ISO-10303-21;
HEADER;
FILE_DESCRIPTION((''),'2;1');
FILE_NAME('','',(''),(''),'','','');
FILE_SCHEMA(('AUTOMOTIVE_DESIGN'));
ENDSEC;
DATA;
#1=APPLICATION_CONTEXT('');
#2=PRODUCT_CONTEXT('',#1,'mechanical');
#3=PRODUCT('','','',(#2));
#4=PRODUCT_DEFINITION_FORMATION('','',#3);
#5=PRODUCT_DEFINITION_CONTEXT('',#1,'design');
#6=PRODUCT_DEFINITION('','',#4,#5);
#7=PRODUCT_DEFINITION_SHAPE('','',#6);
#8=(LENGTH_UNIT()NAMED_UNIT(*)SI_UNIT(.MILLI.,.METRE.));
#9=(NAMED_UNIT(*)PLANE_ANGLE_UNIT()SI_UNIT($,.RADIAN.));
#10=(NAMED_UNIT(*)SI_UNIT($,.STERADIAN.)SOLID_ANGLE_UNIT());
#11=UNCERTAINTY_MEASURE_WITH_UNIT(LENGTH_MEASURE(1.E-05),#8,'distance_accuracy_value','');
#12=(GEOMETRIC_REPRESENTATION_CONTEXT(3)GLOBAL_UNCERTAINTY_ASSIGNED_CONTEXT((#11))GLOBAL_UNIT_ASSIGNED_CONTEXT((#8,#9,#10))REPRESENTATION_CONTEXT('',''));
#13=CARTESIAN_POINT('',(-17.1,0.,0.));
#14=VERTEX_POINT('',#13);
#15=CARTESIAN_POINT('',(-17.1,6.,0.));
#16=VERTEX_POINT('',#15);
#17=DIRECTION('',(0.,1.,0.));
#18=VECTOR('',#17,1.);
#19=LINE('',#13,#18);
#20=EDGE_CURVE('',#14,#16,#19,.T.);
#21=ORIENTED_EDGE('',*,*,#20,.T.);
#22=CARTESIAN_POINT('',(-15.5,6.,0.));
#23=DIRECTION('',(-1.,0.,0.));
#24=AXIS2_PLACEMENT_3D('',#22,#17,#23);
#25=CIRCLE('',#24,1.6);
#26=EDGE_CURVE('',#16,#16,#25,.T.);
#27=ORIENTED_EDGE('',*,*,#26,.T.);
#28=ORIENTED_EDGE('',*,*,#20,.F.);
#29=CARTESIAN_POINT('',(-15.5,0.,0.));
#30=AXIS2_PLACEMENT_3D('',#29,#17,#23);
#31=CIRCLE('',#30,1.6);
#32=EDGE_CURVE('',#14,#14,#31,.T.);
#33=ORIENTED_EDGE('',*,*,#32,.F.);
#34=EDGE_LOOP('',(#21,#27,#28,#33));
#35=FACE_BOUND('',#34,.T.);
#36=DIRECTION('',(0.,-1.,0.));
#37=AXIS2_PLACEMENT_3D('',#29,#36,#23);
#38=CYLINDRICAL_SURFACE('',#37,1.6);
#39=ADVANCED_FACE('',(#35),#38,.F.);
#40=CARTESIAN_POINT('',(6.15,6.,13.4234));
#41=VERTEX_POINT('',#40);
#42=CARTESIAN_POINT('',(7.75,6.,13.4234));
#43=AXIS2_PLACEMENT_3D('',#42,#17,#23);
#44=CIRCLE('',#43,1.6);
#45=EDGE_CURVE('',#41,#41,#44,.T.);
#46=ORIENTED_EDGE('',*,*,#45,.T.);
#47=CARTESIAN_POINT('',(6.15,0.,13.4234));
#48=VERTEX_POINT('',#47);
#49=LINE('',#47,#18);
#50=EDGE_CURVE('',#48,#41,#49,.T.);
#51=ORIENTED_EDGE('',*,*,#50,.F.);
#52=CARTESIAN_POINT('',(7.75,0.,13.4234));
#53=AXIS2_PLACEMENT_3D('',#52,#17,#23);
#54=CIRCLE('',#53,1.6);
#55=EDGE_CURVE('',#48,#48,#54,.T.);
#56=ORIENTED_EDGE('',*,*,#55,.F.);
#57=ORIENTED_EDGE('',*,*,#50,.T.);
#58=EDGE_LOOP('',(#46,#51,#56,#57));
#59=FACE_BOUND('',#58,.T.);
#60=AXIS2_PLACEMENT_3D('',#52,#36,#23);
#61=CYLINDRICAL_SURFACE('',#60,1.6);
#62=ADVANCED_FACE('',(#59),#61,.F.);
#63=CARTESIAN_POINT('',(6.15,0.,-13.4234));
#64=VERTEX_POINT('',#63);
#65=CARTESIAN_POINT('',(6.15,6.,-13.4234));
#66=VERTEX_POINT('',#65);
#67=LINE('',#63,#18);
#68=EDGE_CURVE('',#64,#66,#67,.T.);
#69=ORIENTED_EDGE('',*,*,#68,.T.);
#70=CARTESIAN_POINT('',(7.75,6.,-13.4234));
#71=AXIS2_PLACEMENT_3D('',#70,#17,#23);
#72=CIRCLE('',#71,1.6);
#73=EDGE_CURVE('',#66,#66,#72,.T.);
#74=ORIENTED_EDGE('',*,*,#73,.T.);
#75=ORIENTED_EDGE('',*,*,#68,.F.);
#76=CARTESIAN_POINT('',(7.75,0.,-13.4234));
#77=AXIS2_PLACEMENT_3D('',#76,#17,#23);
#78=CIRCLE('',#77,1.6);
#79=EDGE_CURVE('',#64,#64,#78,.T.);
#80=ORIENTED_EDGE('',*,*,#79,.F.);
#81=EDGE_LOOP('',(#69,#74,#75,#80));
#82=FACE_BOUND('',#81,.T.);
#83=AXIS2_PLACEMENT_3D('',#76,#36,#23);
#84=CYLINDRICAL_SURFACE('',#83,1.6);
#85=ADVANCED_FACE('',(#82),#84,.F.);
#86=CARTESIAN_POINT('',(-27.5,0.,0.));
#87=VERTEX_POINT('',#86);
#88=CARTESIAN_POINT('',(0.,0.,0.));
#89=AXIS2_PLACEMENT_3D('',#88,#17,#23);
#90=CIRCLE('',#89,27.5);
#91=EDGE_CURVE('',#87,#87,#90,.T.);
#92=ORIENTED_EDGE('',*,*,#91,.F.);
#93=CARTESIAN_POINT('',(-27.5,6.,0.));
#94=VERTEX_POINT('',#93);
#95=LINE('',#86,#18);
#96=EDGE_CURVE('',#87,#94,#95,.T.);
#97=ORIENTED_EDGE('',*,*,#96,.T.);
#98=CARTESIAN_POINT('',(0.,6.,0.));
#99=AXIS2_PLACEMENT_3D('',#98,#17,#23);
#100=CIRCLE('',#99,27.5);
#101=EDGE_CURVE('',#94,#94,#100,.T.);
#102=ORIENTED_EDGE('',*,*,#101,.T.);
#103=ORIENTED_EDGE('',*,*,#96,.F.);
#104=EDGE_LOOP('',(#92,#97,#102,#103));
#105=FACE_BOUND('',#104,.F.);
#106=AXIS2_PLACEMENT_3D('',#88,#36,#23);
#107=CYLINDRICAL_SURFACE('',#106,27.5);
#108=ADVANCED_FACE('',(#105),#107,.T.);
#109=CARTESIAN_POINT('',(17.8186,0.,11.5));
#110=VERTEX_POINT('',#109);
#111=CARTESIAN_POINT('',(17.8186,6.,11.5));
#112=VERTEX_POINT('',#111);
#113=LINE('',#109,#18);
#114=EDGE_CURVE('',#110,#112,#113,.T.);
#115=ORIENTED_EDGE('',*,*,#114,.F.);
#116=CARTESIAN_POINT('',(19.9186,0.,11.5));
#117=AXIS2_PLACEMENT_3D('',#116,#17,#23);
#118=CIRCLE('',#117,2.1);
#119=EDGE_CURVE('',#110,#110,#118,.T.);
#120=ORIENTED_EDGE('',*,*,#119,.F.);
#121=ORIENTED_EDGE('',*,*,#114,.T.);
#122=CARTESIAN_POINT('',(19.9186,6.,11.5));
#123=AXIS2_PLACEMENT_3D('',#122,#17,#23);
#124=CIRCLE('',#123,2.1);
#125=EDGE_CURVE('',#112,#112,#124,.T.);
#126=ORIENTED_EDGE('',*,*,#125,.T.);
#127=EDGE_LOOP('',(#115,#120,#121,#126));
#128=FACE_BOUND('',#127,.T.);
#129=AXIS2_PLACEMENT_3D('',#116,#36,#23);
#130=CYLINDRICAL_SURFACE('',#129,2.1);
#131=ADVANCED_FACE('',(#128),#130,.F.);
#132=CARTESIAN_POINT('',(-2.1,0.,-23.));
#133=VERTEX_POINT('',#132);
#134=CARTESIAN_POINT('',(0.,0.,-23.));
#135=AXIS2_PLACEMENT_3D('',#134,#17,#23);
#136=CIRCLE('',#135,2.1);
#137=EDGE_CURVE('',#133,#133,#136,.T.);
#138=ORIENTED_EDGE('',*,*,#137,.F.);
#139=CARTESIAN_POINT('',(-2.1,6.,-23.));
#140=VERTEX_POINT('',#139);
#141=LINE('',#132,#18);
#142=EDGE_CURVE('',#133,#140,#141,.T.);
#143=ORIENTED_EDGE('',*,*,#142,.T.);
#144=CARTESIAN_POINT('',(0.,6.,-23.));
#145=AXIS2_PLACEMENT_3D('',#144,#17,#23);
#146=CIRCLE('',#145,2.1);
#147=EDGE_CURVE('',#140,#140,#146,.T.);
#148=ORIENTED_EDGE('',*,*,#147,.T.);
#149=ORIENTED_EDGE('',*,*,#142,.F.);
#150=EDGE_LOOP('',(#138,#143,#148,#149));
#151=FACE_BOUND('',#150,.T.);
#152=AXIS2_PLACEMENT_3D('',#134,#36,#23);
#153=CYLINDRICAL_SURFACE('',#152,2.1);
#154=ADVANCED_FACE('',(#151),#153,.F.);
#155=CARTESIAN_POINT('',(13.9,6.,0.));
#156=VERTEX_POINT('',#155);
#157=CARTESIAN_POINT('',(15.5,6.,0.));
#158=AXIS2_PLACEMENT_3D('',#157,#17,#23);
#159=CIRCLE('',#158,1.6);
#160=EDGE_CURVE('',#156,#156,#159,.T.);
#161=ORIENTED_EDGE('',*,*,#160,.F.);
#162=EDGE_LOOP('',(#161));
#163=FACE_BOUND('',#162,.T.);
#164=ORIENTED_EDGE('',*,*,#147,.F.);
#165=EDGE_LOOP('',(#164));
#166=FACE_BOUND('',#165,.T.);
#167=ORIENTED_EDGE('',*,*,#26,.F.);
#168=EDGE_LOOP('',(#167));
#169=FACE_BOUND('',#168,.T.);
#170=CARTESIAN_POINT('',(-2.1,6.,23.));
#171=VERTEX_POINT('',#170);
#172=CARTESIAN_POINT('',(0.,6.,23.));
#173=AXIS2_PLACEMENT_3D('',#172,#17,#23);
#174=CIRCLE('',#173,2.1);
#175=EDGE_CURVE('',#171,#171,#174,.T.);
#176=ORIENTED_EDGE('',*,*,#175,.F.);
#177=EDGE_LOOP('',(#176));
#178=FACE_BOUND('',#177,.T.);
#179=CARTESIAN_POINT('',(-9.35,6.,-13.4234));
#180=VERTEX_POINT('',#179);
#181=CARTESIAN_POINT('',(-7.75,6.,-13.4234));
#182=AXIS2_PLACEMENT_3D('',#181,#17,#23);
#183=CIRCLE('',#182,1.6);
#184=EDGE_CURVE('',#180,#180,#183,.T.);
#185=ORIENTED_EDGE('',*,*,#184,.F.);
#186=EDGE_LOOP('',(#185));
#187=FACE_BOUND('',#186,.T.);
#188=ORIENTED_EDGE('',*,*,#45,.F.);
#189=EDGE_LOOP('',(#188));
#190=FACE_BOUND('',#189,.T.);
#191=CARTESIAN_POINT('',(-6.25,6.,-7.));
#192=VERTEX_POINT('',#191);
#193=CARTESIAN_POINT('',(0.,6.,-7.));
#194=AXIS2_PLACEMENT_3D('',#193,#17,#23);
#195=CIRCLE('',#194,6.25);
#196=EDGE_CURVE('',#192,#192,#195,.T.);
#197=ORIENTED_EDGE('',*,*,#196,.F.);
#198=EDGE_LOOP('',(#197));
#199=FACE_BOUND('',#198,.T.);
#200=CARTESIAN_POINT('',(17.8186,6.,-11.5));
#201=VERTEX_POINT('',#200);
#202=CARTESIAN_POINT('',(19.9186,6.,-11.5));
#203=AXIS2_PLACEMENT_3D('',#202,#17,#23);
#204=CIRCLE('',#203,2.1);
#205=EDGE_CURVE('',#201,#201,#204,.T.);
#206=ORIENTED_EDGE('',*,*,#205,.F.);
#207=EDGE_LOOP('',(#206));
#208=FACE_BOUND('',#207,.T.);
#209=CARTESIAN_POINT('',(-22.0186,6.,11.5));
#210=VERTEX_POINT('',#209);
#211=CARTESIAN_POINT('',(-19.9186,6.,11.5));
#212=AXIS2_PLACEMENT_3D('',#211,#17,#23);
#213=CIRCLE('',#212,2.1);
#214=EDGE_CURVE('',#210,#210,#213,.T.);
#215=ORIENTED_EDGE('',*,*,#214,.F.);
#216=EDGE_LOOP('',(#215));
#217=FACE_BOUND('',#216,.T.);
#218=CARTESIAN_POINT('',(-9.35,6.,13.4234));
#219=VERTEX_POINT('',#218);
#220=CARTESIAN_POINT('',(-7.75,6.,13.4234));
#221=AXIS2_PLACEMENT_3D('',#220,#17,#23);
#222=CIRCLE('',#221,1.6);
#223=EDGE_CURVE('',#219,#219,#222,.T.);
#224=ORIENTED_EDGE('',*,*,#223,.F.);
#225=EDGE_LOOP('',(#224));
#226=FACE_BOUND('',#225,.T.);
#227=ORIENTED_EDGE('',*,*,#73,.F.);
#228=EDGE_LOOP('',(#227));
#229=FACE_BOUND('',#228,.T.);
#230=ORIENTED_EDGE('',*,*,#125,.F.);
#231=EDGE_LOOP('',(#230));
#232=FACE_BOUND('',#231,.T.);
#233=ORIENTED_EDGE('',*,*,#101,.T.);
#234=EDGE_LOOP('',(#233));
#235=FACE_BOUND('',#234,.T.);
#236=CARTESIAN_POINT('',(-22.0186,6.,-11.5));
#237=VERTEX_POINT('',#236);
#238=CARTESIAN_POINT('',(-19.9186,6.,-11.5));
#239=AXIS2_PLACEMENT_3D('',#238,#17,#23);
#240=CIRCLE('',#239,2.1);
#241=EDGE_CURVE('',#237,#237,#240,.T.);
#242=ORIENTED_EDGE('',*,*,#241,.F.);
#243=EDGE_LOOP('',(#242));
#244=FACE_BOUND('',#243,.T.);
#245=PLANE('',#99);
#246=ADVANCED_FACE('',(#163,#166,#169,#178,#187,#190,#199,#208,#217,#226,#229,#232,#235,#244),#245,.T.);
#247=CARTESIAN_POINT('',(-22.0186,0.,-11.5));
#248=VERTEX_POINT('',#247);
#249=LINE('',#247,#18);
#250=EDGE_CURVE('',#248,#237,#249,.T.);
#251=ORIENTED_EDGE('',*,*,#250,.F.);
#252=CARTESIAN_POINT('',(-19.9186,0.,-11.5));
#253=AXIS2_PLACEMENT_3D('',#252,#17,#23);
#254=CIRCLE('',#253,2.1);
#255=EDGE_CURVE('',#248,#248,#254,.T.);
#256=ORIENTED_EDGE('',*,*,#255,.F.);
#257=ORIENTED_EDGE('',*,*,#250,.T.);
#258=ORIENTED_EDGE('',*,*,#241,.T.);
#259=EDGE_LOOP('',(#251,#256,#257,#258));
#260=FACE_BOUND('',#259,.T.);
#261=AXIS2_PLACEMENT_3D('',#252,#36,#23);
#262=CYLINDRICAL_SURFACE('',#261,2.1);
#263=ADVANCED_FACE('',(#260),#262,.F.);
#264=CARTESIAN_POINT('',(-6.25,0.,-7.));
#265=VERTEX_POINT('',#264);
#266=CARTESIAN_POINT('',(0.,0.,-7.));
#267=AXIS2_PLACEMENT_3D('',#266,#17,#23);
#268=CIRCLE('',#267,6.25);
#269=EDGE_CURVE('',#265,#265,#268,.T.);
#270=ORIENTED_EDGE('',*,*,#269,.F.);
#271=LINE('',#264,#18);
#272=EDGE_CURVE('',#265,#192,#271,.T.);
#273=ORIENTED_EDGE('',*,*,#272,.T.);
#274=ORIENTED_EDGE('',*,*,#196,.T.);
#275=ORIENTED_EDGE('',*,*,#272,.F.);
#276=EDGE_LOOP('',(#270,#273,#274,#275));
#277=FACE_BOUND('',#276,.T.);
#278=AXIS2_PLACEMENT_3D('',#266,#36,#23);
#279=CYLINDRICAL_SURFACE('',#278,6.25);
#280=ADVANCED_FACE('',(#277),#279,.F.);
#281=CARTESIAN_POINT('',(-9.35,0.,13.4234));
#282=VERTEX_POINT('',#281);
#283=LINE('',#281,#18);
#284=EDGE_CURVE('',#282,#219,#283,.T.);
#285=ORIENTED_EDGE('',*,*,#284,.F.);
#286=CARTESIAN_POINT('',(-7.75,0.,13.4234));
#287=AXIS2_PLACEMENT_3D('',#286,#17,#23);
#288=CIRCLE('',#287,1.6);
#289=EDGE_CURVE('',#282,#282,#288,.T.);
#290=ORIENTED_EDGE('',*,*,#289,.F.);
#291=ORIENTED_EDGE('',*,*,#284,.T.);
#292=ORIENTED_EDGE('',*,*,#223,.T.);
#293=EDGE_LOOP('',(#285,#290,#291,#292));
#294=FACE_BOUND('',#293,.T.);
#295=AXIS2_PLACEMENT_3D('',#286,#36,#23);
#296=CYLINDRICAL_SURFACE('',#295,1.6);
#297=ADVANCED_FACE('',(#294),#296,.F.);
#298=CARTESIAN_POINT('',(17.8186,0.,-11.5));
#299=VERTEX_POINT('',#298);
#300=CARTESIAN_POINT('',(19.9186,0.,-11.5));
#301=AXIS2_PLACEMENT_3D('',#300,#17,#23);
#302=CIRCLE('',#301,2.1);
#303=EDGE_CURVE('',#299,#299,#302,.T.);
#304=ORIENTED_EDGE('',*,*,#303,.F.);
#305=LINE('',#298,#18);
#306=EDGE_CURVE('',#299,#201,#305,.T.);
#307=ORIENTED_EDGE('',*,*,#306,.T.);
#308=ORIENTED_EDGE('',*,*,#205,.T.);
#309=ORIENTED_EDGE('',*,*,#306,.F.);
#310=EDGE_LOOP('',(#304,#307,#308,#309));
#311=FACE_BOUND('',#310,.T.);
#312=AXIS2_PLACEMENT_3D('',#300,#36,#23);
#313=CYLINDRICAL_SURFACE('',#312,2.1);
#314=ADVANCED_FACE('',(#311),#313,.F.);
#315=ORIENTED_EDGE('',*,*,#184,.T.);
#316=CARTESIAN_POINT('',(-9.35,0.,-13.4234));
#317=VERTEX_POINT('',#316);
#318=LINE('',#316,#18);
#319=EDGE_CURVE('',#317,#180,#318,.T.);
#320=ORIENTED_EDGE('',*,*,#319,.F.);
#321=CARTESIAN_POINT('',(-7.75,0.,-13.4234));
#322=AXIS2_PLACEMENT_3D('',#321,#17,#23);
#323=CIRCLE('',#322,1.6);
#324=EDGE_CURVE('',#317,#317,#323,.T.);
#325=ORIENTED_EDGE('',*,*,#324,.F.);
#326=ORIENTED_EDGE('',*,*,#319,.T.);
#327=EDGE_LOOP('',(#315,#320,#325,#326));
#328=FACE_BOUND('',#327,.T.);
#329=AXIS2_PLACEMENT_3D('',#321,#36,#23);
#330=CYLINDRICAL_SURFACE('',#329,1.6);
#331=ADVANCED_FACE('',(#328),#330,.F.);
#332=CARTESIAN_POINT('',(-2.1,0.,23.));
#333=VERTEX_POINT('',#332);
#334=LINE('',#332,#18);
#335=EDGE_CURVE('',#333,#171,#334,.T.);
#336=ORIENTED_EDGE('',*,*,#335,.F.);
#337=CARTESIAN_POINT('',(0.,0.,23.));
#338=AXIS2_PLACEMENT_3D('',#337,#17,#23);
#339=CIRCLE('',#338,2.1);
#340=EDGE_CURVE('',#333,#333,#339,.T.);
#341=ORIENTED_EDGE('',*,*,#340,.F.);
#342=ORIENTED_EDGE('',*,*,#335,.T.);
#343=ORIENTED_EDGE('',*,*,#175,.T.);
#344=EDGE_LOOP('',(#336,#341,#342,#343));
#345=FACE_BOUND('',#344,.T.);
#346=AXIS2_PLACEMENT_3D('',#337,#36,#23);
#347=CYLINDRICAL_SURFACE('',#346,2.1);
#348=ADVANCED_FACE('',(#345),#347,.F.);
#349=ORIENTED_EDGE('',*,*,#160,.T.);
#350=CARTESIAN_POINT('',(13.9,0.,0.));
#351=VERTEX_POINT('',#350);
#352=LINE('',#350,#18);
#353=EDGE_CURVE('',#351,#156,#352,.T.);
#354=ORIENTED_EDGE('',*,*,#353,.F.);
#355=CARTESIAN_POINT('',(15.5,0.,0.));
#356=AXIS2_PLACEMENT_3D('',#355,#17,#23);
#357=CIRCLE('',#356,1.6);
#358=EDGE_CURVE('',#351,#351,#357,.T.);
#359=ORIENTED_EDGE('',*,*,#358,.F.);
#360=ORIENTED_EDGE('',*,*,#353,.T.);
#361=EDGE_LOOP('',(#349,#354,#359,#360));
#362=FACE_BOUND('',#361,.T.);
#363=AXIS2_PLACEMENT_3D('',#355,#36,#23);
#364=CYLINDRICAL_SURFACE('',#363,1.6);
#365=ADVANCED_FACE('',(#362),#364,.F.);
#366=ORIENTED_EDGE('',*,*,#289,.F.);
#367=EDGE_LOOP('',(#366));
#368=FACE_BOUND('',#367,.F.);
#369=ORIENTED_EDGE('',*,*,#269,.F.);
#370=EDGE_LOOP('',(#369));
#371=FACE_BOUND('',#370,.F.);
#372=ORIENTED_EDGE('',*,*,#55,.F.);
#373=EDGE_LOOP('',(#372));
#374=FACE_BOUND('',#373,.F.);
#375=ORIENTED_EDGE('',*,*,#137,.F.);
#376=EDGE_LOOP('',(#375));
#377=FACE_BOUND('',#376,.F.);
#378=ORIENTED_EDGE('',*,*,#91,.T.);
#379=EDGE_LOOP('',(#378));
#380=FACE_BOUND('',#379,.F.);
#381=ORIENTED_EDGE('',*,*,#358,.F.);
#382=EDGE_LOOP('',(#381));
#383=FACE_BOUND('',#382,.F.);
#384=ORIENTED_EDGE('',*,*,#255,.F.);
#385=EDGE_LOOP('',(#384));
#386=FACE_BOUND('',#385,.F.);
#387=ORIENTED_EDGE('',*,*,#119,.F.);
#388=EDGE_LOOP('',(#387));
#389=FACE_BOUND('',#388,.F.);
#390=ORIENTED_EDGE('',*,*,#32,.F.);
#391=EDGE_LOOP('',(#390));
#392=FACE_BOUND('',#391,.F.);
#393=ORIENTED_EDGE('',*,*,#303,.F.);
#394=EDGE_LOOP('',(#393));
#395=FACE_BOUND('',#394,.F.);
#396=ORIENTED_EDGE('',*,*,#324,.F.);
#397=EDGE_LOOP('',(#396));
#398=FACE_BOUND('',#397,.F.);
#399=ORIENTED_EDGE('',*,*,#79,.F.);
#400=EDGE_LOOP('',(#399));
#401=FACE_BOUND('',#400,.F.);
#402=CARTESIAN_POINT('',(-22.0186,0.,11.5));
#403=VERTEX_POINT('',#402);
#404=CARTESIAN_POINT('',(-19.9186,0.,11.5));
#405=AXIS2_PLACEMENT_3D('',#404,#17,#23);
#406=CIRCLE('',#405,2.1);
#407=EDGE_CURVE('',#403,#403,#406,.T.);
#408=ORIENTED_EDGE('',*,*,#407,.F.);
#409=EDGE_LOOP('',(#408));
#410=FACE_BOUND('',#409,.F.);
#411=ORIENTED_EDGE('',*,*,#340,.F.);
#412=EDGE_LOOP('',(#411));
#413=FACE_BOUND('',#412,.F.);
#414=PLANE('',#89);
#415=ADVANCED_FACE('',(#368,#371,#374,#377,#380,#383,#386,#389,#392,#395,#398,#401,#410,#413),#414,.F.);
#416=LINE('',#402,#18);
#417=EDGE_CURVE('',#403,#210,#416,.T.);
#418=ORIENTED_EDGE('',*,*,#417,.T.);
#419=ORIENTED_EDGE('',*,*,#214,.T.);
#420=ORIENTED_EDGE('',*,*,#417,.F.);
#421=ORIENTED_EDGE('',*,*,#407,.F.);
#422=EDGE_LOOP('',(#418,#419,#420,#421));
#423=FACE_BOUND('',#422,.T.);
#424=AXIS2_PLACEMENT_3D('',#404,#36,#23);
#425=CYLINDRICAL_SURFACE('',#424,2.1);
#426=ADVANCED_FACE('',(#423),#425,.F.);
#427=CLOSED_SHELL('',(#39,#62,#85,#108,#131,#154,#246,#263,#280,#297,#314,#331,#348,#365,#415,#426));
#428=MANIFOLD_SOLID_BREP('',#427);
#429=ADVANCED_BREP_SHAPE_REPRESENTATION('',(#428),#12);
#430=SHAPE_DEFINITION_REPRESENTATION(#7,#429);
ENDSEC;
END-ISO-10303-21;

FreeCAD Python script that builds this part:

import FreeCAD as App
import Part
import Sketcher
from FreeCAD import Vector

doc = App.newDocument("Part")
params = doc.addObject("Spreadsheet::Sheet", "Params")
for row, (alias, value) in enumerate([
    ("sketch1_diameter", "55 mm"),
    ("sketch1_diameter2", "4.2 mm"),
    ("sketch1_diameter3", "3.2 mm"),
    ("sketch1_diameter4", "12.5 mm"),
    ("pad1_length", "6 mm"),
], start=1):
    params.set(f"A{row}", alias)
    params.set(f"B{row}", "=" + value)
    params.setAlias(f"B{row}", alias)

body = doc.addObject("PartDesign::Body", "Body")

sketch1 = body.newObject("Sketcher::SketchObject", "Sketch")
sketch1.AttachmentSupport = (doc.getObject("XZ_Plane"), [""])
sketch1.MapMode = "FlatFace"
sketch1.addGeometry([
    Part.Circle(Vector(0, 0, 0), Vector(0, 0, 1), 27.5),
    Part.Circle(Vector(19.9, -11.5, 0), Vector(0, 0, 1), 2.1),
    Part.Circle(Vector(7.8, -13.4, 0), Vector(0, 0, 1), 1.6),
    Part.Circle(Vector(0, -23, 0), Vector(0, 0, 1), 2.1),
    Part.Circle(Vector(0, -7, 0), Vector(0, 0, 1), 6.2),
    Part.Circle(Vector(-7.8, -13.4, 0), Vector(0, 0, 1), 1.6),
    Part.Circle(Vector(-19.9, -11.5, 0), Vector(0, 0, 1), 2.1),
    Part.Circle(Vector(15.5, 0, 0), Vector(0, 0, 1), 1.6),
    Part.Circle(Vector(19.9, 11.5, 0), Vector(0, 0, 1), 2.1),
    Part.Circle(Vector(7.8, 13.4, 0), Vector(0, 0, 1), 1.6),
    Part.Circle(Vector(-7.8, 13.4, 0), Vector(0, 0, 1), 1.6),
    Part.Circle(Vector(-15.5, 0, 0), Vector(0, 0, 1), 1.6),
    Part.Circle(Vector(-19.9, 11.5, 0), Vector(0, 0, 1), 2.1),
    Part.Circle(Vector(0, 23, 0), Vector(0, 0, 1), 2.1),
], False)
sketch1.addConstraint([
    Sketcher.Constraint("Coincident", 0, 3, -1, 1),
    Sketcher.Constraint("Equal", 1, 3),
    Sketcher.Constraint("Equal", 2, 5),
    Sketcher.Constraint("Equal", 3, 6),
    Sketcher.Constraint("Equal", 5, 7),
    Sketcher.Constraint("Equal", 6, 8),
    Sketcher.Constraint("Equal", 7, 9),
    Sketcher.Constraint("Equal", 9, 10),
    Sketcher.Constraint("Equal", 10, 11),
    Sketcher.Constraint("Equal", 8, 12),
    Sketcher.Constraint("Equal", 12, 13),
    Sketcher.Constraint("Symmetric", 6, 3, 8, 3, -1, 1),
    Sketcher.Constraint("Symmetric", 5, 3, 9, 3, -1, 1),
    Sketcher.Constraint("Symmetric", 2, 3, 10, 3, -1, 1),
    Sketcher.Constraint("Symmetric", 7, 3, 11, 3, -1, 1),
    Sketcher.Constraint("Symmetric", 1, 3, 12, 3, -1, 1),
    Sketcher.Constraint("Symmetric", 3, 3, 13, 3, -1, 1),
    Sketcher.Constraint("Symmetric", 2, 3, 5, 3, -2),
    Sketcher.Constraint("Symmetric", 1, 3, 6, 3, -2),
    Sketcher.Constraint("PointOnObject", 3, 3, -2),
    Sketcher.Constraint("PointOnObject", 4, 3, -2),
    Sketcher.Constraint("PointOnObject", 7, 3, -1),
    Sketcher.Constraint("Diameter", 0, 55.0),
    Sketcher.Constraint("Diameter", 1, 4.2),
    Sketcher.Constraint("Diameter", 2, 3.2),
    Sketcher.Constraint("Diameter", 4, 12.5),
    Sketcher.Constraint("DistanceY", 3, 3, -1, 1, 23.0),
    Sketcher.Constraint("DistanceY", 4, 3, -1, 1, 7.0),
    Sketcher.Constraint("DistanceY", 1, 3, 8, 3, 23.0),
    Sketcher.Constraint("DistanceX", -1, 1, 7, 3, 15.5),
    Sketcher.Constraint("DistanceX", 5, 3, 2, 3, 15.5),
    Sketcher.Constraint("DistanceX", -1, 1, 1, 3, 19.9186),
    Sketcher.Constraint("DistanceY", 2, 3, -1, 1, 13.4234),
])
sketch1.setExpression("Constraints[22]", "Params.sketch1_diameter")
sketch1.setExpression("Constraints[23]", "Params.sketch1_diameter2")
sketch1.setExpression("Constraints[24]", "Params.sketch1_diameter3")
sketch1.setExpression("Constraints[25]", "Params.sketch1_diameter4")
pad1 = body.newObject("PartDesign::Pad", "Pad")
pad1.Profile = sketch1
pad1.setExpression("Length", "Params.pad1_length")
pad1.Reversed = True

doc.recompute()
